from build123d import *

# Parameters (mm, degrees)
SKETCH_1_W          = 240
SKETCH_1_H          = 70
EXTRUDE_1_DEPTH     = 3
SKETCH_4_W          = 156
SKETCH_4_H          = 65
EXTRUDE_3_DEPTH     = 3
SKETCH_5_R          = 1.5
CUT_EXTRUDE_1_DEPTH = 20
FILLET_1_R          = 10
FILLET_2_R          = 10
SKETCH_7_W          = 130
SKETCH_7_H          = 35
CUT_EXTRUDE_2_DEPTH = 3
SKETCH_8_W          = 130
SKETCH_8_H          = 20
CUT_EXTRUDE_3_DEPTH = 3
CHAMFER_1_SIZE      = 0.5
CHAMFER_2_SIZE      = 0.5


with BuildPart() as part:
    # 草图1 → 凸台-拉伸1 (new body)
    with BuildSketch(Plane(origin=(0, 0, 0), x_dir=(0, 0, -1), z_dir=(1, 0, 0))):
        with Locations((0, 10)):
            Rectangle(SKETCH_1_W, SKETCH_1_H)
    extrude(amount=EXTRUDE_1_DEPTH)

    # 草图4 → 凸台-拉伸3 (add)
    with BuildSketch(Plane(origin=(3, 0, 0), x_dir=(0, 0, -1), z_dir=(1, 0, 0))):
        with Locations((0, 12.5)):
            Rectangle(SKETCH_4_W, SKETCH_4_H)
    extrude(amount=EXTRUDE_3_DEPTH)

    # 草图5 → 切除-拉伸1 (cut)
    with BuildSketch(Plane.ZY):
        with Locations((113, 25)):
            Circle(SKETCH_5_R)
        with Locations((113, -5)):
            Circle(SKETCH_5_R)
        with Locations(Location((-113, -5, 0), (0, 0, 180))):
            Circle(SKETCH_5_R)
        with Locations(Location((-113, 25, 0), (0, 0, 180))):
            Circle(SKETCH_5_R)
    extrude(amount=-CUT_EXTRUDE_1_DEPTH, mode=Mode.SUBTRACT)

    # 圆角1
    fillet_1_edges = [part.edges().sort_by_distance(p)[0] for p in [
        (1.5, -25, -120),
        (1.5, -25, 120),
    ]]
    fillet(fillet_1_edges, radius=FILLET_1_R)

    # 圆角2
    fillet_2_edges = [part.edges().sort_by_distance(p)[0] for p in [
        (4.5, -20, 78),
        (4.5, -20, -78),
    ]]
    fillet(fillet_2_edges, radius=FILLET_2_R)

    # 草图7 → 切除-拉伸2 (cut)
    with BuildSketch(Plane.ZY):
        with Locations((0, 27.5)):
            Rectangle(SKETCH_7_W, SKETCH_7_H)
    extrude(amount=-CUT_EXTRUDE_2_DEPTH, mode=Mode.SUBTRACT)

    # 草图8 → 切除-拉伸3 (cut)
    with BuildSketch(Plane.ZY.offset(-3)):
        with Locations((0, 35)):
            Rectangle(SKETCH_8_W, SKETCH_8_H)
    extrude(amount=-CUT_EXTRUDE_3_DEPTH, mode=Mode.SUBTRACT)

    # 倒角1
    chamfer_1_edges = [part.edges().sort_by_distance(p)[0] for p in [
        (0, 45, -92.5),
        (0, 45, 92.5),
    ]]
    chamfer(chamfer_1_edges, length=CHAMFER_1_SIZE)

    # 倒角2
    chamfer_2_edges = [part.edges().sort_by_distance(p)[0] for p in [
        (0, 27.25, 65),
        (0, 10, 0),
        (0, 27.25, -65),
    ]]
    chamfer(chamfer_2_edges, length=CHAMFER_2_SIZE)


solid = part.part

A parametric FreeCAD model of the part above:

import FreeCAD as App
import Part
import Sketcher


def edges_at(feature, points):
    """Names of the edges that pass closest to the given points."""
    edges = feature.Shape.Edges
    near = lambda p: min(range(len(edges)), key=lambda i: edges[i].distToShape(Part.Vertex(*p))[0])
    return sorted({f"Edge{near(p) + 1}" for p in points})


def add_polygon(sketch, points):
    """Adds a closed chain of lines whose ends are joined by coincident constraints."""
    first, n = sketch.GeometryCount, len(points)
    for a, b in zip(points, points[1:] + points[:1]):
        sketch.addGeometry(Part.LineSegment(App.Vector(*a, 0), App.Vector(*b, 0)), False)
    for i in range(n):
        sketch.addConstraint(Sketcher.Constraint("Coincident", first + i, 2, first + (i + 1) % n, 1))

doc = App.newDocument("Part")
body = doc.addObject("PartDesign::Body", "Body")

# Sketch on YZ plane
sketch1 = body.newObject("Sketcher::SketchObject", "Sketch")
sketch1.AttachmentSupport = (doc.getObject("YZ_Plane"), [""])
sketch1.MapMode = "FlatFace"
add_polygon(sketch1, [(45, 120), (-25, 120), (-25, -120), (45, -120)])  # lines 0-3
sketch1.addConstraint([
    Sketcher.Constraint("Horizontal", 0),
    Sketcher.Constraint("Vertical", 1),
    Sketcher.Constraint("Horizontal", 2),
    Sketcher.Constraint("Vertical", 3),
    Sketcher.Constraint("DistanceX", 0, 2, 0, 1, 70.0),
    Sketcher.Constraint("DistanceY", 1, 2, 1, 1, 240.0),
    Sketcher.Constraint("DistanceX", 0, 2, -1, 1, 25.0),
    Sketcher.Constraint("DistanceY", -1, 1, 0, 2, 120.0),
])
pad1 = body.newObject("PartDesign::Pad", "Pad")
pad1.Profile = sketch1
pad1.Length = 3

# Sketch on YZ plane
sketch2 = body.newObject("Sketcher::SketchObject", "Sketch001")
sketch2.AttachmentSupport = (doc.getObject("YZ_Plane"), [""])
sketch2.MapMode = "FlatFace"
sketch2.AttachmentOffset = App.Placement(App.Vector(0, 0, 3), App.Rotation())
add_polygon(sketch2, [(45, 78), (-20, 78), (-20, -78), (45, -78)])  # lines 0-3
sketch2.addConstraint([
    Sketcher.Constraint("Horizontal", 0),
    Sketcher.Constraint("Vertical", 1),
    Sketcher.Constraint("Horizontal", 2),
    Sketcher.Constraint("Vertical", 3),
    Sketcher.Constraint("DistanceX", 0, 2, 0, 1, 65.0),
    Sketcher.Constraint("DistanceY", 1, 2, 1, 1, 156.0),
    Sketcher.Constraint("DistanceX", 0, 2, -1, 1, 20.0),
    Sketcher.Constraint("DistanceY", -1, 1, 0, 2, 78.0),
])
pad2 = body.newObject("PartDesign::Pad", "Pad001")
pad2.Profile = sketch2
pad2.Length = 3

# Sketch on YZ plane
sketch3 = body.newObject("Sketcher::SketchObject", "Sketch002")
sketch3.AttachmentSupport = (doc.getObject("YZ_Plane"), [""])
sketch3.MapMode = "FlatFace"
sketch3.addGeometry([
    Part.Circle(App.Vector(25, 113, 0), App.Vector(0, 0, 1), 1.5),
    Part.Circle(App.Vector(-5, 113, 0), App.Vector(0, 0, 1), 1.5),
    Part.Circle(App.Vector(-5, -113, 0), App.Vector(0, 0, 1), 1.5),
    Part.Circle(App.Vector(25, -113, 0), App.Vector(0, 0, 1), 1.5),
], False)
sketch3.addConstraint([
    Sketcher.Constraint("Equal", 0, 1),
    Sketcher.Constraint("Equal", 1, 2),
    Sketcher.Constraint("Equal", 2, 3),
    Sketcher.Constraint("Symmetric", 1, 3, 2, 3, -1),
    Sketcher.Constraint("Symmetric", 0, 3, 3, 3, -1),
    Sketcher.Constraint("Horizontal", 0, 3, 1, 3),
    Sketcher.Constraint("Diameter", 0, 3.0),
    Sketcher.Constraint("DistanceX", -1, 1, 0, 3, 25.0),
    Sketcher.Constraint("DistanceY", -1, 1, 0, 3, 113.0),
    Sketcher.Constraint("DistanceX", 1, 3, -1, 1, 5.0),
])
pocket1 = body.newObject("PartDesign::Pocket", "Pocket")
pocket1.Profile = sketch3
pocket1.Length = 20
pocket1.Reversed = True
doc.recompute()

fillet = body.newObject("PartDesign::Fillet", "Fillet")
fillet.Base = (pocket1, edges_at(pocket1, [(1.5, -25, -120), (1.5, -25, 120)]))
fillet.Radius = 10
doc.recompute()

fillet2 = body.newObject("PartDesign::Fillet", "Fillet001")
fillet2.Base = (fillet, edges_at(fillet, [(4.5, -20, 78), (4.5, -20, -78)]))
fillet2.Radius = 10

# Sketch on YZ plane
sketch4 = body.newObject("Sketcher::SketchObject", "Sketch003")
sketch4.AttachmentSupport = (doc.getObject("YZ_Plane"), [""])
sketch4.MapMode = "FlatFace"
add_polygon(sketch4, [(45, -65), (10, -65), (10, 65), (45, 65)])  # lines 0-3
sketch4.addConstraint([
    Sketcher.Constraint("Horizontal", 0),
    Sketcher.Constraint("Vertical", 1),
    Sketcher.Constraint("Horizontal", 2),
    Sketcher.Constraint("Vertical", 3),
    Sketcher.Constraint("DistanceX", 0, 2, 0, 1, 35.0),
    Sketcher.Constraint("DistanceY", 1, 1, 1, 2, 130.0),
    Sketcher.Constraint("DistanceX", -1, 1, 0, 2, 10.0),
    Sketcher.Constraint("DistanceY", 0, 2, -1, 1, 65.0),
])
pocket2 = body.newObject("PartDesign::Pocket", "Pocket001")
pocket2.Profile = sketch4
pocket2.Length = 3
pocket2.Reversed = True

# Sketch on YZ plane
sketch5 = body.newObject("Sketcher::SketchObject", "Sketch004")
sketch5.AttachmentSupport = (doc.getObject("YZ_Plane"), [""])
sketch5.MapMode = "FlatFace"
sketch5.AttachmentOffset = App.Placement(App.Vector(0, 0, 3), App.Rotation())
add_polygon(sketch5, [(45, -65), (25, -65), (25, 65), (45, 65)])  # lines 0-3
sketch5.addConstraint([
    Sketcher.Constraint("Horizontal", 0),
    Sketcher.Constraint("Vertical", 1),
    Sketcher.Constraint("Horizontal", 2),
    Sketcher.Constraint("Vertical", 3),
    Sketcher.Constraint("DistanceX", 0, 2, 0, 1, 20.0),
    Sketcher.Constraint("DistanceY", 1, 1, 1, 2, 130.0),
    Sketcher.Constraint("DistanceX", -1, 1, 0, 2, 25.0),
    Sketcher.Constraint("DistanceY", 0, 2, -1, 1, 65.0),
])
pocket3 = body.newObject("PartDesign::Pocket", "Pocket002")
pocket3.Profile = sketch5
pocket3.Length = 3
pocket3.Reversed = True
doc.recompute()

chamfer = body.newObject("PartDesign::Chamfer", "Chamfer")
chamfer.Base = (pocket3, edges_at(pocket3, [(0, 45, -92.5), (0, 45, 92.5)]))
chamfer.Size = 0.5
doc.recompute()

chamfer2 = body.newObject("PartDesign::Chamfer", "Chamfer001")
chamfer2.Base = (chamfer, edges_at(chamfer, [(0, 27.25, 65), (0, 10, 0), (0, 27.25, -65)]))
chamfer2.Size = 0.5

doc.recompute()
